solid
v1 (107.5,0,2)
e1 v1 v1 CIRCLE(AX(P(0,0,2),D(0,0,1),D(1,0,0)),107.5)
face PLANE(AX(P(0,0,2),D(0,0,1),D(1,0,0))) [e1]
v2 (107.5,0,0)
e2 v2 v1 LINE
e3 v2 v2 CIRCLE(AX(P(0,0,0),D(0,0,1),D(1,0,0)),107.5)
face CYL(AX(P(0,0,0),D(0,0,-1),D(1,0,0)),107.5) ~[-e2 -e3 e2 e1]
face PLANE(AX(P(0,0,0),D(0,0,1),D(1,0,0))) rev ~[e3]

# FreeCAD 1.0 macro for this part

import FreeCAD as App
import Part
import Sketcher
Q = App.Units.Quantity

doc = App.newDocument("Part")
params = doc.addObject("Spreadsheet::Sheet", "Params")
for row, (alias, value) in enumerate([
    ("sketch1_diameter", "215 mm"),
    ("pad1_length", "2 mm"),
], start=1):
    params.set(f"A{row}", alias)
    params.set(f"B{row}", "=" + value)
    params.setAlias(f"B{row}", alias)

body = doc.addObject("PartDesign::Body", "Body")

# Sketch on XY plane
sketch1 = doc.addObject("Sketcher::SketchObject", "Sketch")
body.addObject(sketch1)
sketch1.AttachmentSupport = (doc.XY_Plane, [""])
sketch1.MapMode = "FlatFace"
sketch1.addGeometry(Part.Circle(App.Vector(0, 0, 0), App.Vector(0, 0, 1), 108), False)
sketch1.addConstraint([
    Sketcher.Constraint("Coincident", 0, 3, -1, 1),
    Sketcher.Constraint("Diameter", 0, Q("215 mm")),
])
sketch1.setExpression("Constraints[1]", "Params.sketch1_diameter")
pad1 = doc.addObject("PartDesign::Pad", "Pad")
body.addObject(pad1)
pad1.Profile = sketch1
pad1.setExpression("Length", "Params.pad1_length")

doc.recompute()
